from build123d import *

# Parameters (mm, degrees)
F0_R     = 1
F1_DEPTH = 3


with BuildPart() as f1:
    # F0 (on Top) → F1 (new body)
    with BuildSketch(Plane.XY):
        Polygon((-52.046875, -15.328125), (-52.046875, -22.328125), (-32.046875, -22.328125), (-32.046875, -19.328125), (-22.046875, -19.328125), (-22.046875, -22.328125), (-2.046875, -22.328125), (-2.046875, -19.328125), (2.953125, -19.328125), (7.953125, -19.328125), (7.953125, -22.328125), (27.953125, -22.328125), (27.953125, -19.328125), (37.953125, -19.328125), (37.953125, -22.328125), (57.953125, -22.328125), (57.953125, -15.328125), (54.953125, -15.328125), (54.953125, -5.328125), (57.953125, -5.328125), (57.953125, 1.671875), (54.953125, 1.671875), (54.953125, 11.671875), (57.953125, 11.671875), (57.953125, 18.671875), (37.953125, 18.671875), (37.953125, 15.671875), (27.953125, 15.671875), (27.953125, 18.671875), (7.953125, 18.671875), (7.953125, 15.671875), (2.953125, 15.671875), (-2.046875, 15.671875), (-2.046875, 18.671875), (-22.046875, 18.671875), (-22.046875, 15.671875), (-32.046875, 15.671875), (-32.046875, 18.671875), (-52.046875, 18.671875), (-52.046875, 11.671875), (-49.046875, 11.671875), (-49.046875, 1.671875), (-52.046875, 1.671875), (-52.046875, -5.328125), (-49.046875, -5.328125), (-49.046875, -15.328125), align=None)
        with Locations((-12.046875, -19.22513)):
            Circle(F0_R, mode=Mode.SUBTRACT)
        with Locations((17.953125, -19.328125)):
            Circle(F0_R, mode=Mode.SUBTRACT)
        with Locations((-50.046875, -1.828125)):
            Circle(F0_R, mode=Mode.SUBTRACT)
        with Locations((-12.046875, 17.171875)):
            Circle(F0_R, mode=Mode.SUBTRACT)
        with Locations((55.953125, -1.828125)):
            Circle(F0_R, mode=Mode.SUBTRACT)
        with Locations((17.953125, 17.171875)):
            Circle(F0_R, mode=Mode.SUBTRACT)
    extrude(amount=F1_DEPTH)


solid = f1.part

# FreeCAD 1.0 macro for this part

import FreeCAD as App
import Part
import Sketcher
from FreeCAD import Vector


def add_polygon(sketch, points):
    """Adds a closed chain of lines whose ends are joined by coincident constraints."""
    first, n = sketch.GeometryCount, len(points)
    for a, b in zip(points, points[1:] + points[:1]):
        sketch.addGeometry(Part.LineSegment(App.Vector(*a, 0), App.Vector(*b, 0)), False)
    for i in range(n):
        sketch.addConstraint(Sketcher.Constraint("Coincident", first + i, 2, first + (i + 1) % n, 1))

doc = App.newDocument("Part")
params = doc.addObject("Spreadsheet::Sheet", "Params")
for row, (alias, value) in enumerate([
    ("sketch1_diameter", "2 mm"),
    ("sketch1_width", "20 mm"),
    ("sketch1_width2", "10 mm"),
    ("sketch1_width3", "3 mm"),
    ("sketch1_height", "7 mm"),
    ("pad1_length", "3 mm"),
], start=1):
    params.set(f"A{row}", alias)
    params.set(f"B{row}", "=" + value)
    params.setAlias(f"B{row}", alias)

body = doc.addObject("PartDesign::Body", "Body")

sketch1 = doc.addObject("Sketcher::SketchObject", "Sketch")
body.addObject(sketch1)
sketch1.AttachmentSupport = (doc.XY_Plane, [""])
sketch1.MapMode = "FlatFace"
add_polygon(sketch1, [(-52, -15.3), (-52, -22.3), (-32, -22.3), (-32, -19.3), (-22, -19.3), (-22, -22.3), (-2, -22.3), (-2, -19.3), (8, -19.3), (8, -22.3), (28, -22.3), (28, -19.3), (38, -19.3), (38, -22.3), (58, -22.3), (58, -15.3), (55, -15.3), (55, -5.3), (58, -5.3), (58, 1.7), (55, 1.7), (55, 11.7), (58, 11.7), (58, 18.7), (38, 18.7), (38, 15.7), (28, 15.7), (28, 18.7), (8, 18.7), (8, 15.7), (-2, 15.7), (-2, 18.7), (-22, 18.7), (-22, 15.7), (-32, 15.7), (-32, 18.7), (-52, 18.7), (-52, 11.7), (-49, 11.7), (-49, 1.7), (-52, 1.7), (-52, -5.3), (-49, -5.3), (-49, -15.3)])
sketch1.addGeometry(Part.Circle(Vector(-12, -19.2, 0), Vector(0, 0, 1), 1), False)
sketch1.addGeometry(Part.Circle(Vector(-50, -1.8, 0), Vector(0, 0, 1), 1), False)
sketch1.addGeometry(Part.Circle(Vector(18, -19.3, 0), Vector(0, 0, 1), 1), False)
sketch1.addGeometry(Part.Circle(Vector(56, -1.8, 0), Vector(0, 0, 1), 1), False)
sketch1.addGeometry(Part.Circle(Vector(-12, 17.2, 0), Vector(0, 0, 1), 1), False)
sketch1.addGeometry(Part.Circle(Vector(18, 17.2, 0), Vector(0, 0, 1), 1), False)
sketch1.addConstraint(Sketcher.Constraint("Vertical", 0))
sketch1.addConstraint(Sketcher.Constraint("Horizontal", 1))
sketch1.addConstraint(Sketcher.Constraint("Vertical", 2))
sketch1.addConstraint(Sketcher.Constraint("Horizontal", 3))
sketch1.addConstraint(Sketcher.Constraint("Vertical", 4))
sketch1.addConstraint(Sketcher.Constraint("Horizontal", 5))
sketch1.addConstraint(Sketcher.Constraint("Vertical", 6))
sketch1.addConstraint(Sketcher.Constraint("Horizontal", 7))
sketch1.addConstraint(Sketcher.Constraint("Vertical", 8))
sketch1.addConstraint(Sketcher.Constraint("Horizontal", 9))
sketch1.addConstraint(Sketcher.Constraint("Vertical", 10))
sketch1.addConstraint(Sketcher.Constraint("Horizontal", 11))
sketch1.addConstraint(Sketcher.Constraint("Vertical", 12))
sketch1.addConstraint(Sketcher.Constraint("Horizontal", 13))
sketch1.addConstraint(Sketcher.Constraint("Vertical", 14))
sketch1.addConstraint(Sketcher.Constraint("Horizontal", 15))
sketch1.addConstraint(Sketcher.Constraint("Vertical", 16))
sketch1.addConstraint(Sketcher.Constraint("Horizontal", 17))
sketch1.addConstraint(Sketcher.Constraint("Vertical", 18))
sketch1.addConstraint(Sketcher.Constraint("Horizontal", 19))
sketch1.addConstraint(Sketcher.Constraint("Vertical", 20))
sketch1.addConstraint(Sketcher.Constraint("Horizontal", 21))
sketch1.addConstraint(Sketcher.Constraint("Vertical", 22))
sketch1.addConstraint(Sketcher.Constraint("Horizontal", 23))
sketch1.addConstraint(Sketcher.Constraint("Vertical", 24))
sketch1.addConstraint(Sketcher.Constraint("Horizontal", 25))
sketch1.addConstraint(Sketcher.Constraint("Vertical", 26))
sketch1.addConstraint(Sketcher.Constraint("Horizontal", 27))
sketch1.addConstraint(Sketcher.Constraint("Vertical", 28))
sketch1.addConstraint(Sketcher.Constraint("Horizontal", 29))
sketch1.addConstraint(Sketcher.Constraint("Vertical", 30))
sketch1.addConstraint(Sketcher.Constraint("Horizontal", 31))
sketch1.addConstraint(Sketcher.Constraint("Vertical", 32))
sketch1.addConstraint(Sketcher.Constraint("Horizontal", 33))
sketch1.addConstraint(Sketcher.Constraint("Vertical", 34))
sketch1.addConstraint(Sketcher.Constraint("Horizontal", 35))
sketch1.addConstraint(Sketcher.Constraint("Vertical", 36))
sketch1.addConstraint(Sketcher.Constraint("Horizontal", 37))
sketch1.addConstraint(Sketcher.Constraint("Vertical", 38))
sketch1.addConstraint(Sketcher.Constraint("Horizontal", 39))
sketch1.addConstraint(Sketcher.Constraint("Vertical", 40))
sketch1.addConstraint(Sketcher.Constraint("Horizontal", 41))
sketch1.addConstraint(Sketcher.Constraint("Vertical", 42))
sketch1.addConstraint(Sketcher.Constraint("Horizontal", 43))
sketch1.addConstraint(Sketcher.Constraint("Equal", 44, 45))
sketch1.addConstraint(Sketcher.Constraint("Equal", 45, 46))
sketch1.addConstraint(Sketcher.Constraint("Equal", 46, 47))
sketch1.addConstraint(Sketcher.Constraint("Equal", 47, 48))
sketch1.addConstraint(Sketcher.Constraint("Equal", 48, 49))
sketch1.addConstraint(Sketcher.Constraint("Horizontal", 45, 3, 47, 3))
sketch1.addConstraint(Sketcher.Constraint("Horizontal", 48, 3, 49, 3))
sketch1.addConstraint(Sketcher.Constraint("Horizontal", 46, 3, 2, 2))
sketch1.addConstraint(Sketcher.Constraint("Horizontal", 1, 2, 4, 2))
sketch1.addConstraint(Sketcher.Constraint("Horizontal", 3, 2, 6, 2))
sketch1.addConstraint(Sketcher.Constraint("Horizontal", 5, 2, 8, 2))
sketch1.addConstraint(Sketcher.Constraint("Horizontal", 7, 2, 10, 2))
sketch1.addConstraint(Sketcher.Constraint("Horizontal", 9, 2, 12, 2))
sketch1.addConstraint(Sketcher.Constraint("Horizontal", 23, 2, 26, 2))
sketch1.addConstraint(Sketcher.Constraint("Horizontal", 25, 2, 28, 2))
sketch1.addConstraint(Sketcher.Constraint("Horizontal", 27, 2, 30, 2))
sketch1.addConstraint(Sketcher.Constraint("Horizontal", 29, 2, 32, 2))
sketch1.addConstraint(Sketcher.Constraint("Horizontal", 31, 2, 34, 2))
sketch1.addConstraint(Sketcher.Constraint("Horizontal", 21, 2, 36, 2))
sketch1.addConstraint(Sketcher.Constraint("Horizontal", 19, 2, 38, 2))
sketch1.addConstraint(Sketcher.Constraint("Horizontal", 17, 2, 40, 2))
sketch1.addConstraint(Sketcher.Constraint("Horizontal", 15, 2, 42, 2))
sketch1.addConstraint(Sketcher.Constraint("Vertical", 44, 3, 48, 3))
sketch1.addConstraint(Sketcher.Constraint("Vertical", 46, 3, 49, 3))
sketch1.addConstraint(Sketcher.Constraint("Vertical", 14, 2, 17, 2))
sketch1.addConstraint(Sketcher.Constraint("Vertical", 16, 2, 19, 2))
sketch1.addConstraint(Sketcher.Constraint("Vertical", 18, 2, 21, 2))
sketch1.addConstraint(Sketcher.Constraint("Vertical", 12, 2, 23, 2))
sketch1.addConstraint(Sketcher.Constraint("Vertical", 10, 2, 25, 2))
sketch1.addConstraint(Sketcher.Constraint("Vertical", 8, 2, 27, 2))
sketch1.addConstraint(Sketcher.Constraint("Vertical", 6, 2, 29, 2))
sketch1.addConstraint(Sketcher.Constraint("Vertical", 4, 2, 31, 2))
sketch1.addConstraint(Sketcher.Constraint("Vertical", 2, 2, 33, 2))
sketch1.addConstraint(Sketcher.Constraint("Vertical", 0, 2, 35, 2))
sketch1.addConstraint(Sketcher.Constraint("Vertical", 36, 2, 39, 2))
sketch1.addConstraint(Sketcher.Constraint("Vertical", 38, 2, 41, 2))
sketch1.addConstraint(Sketcher.Constraint("Equal", 1, 5))
sketch1.addConstraint(Sketcher.Constraint("Equal", 3, 7))
sketch1.addConstraint(Sketcher.Constraint("Equal", 5, 9))
sketch1.addConstraint(Sketcher.Constraint("Equal", 7, 11))
sketch1.addConstraint(Sketcher.Constraint("Equal", 9, 13))
sketch1.addConstraint(Sketcher.Constraint("Equal", 21, 37))
sketch1.addConstraint(Sketcher.Constraint("Equal", 43, 2))
sketch1.addConstraint(Sketcher.Constraint("Equal", 33, 16))
sketch1.addConstraint(Sketcher.Constraint("Equal", 14, 18))
sketch1.addConstraint(Sketcher.Constraint("Equal", 16, 20))
sketch1.addConstraint(Sketcher.Constraint("Equal", 18, 22))
sketch1.addConstraint(Sketcher.Constraint("Equal", 12, 24))
sketch1.addConstraint(Sketcher.Constraint("Diameter", 44, 2.0))
sketch1.addConstraint(Sketcher.Constraint("DistanceX", 1, 1, 1, 2, 20.0))
sketch1.addConstraint(Sketcher.Constraint("DistanceX", 3, 1, 3, 2, 10.0))
sketch1.addConstraint(Sketcher.Constraint("DistanceX", 15, 2, 15, 1, 3.0))
sketch1.addConstraint(Sketcher.Constraint("DistanceY", 0, 2, 0, 1, 7.0))
sketch1.addConstraint(Sketcher.Constraint("DistanceX", 45, 3, 44, 3, 38.0))
sketch1.addConstraint(Sketcher.Constraint("DistanceX", 44, 3, 46, 3, 30.0))
sketch1.addConstraint(Sketcher.Constraint("DistanceX", 46, 3, 47, 3, 38.0))
sketch1.addConstraint(Sketcher.Constraint("DistanceY", 45, 3, 48, 3, 19.0))
sketch1.addConstraint(Sketcher.Constraint("DistanceX", 0, 2, 45, 3, 2.0))
sketch1.addConstraint(Sketcher.Constraint("DistanceY", 46, 3, 45, 3, 17.5))
sketch1.addConstraint(Sketcher.Constraint("DistanceY", 44, 3, -1, 1, 19.22513))
sketch1.addConstraint(Sketcher.Constraint("DistanceX", 44, 3, -1, 1, 12.046875))
sketch1.addConstraint(Sketcher.Constraint("DistanceY", 45, 3, -1, 1, 1.828125))
sketch1.setExpression("Constraints[136]", "Params.sketch1_diameter")
sketch1.setExpression("Constraints[137]", "Params.sketch1_width")
sketch1.setExpression("Constraints[138]", "Params.sketch1_width2")
sketch1.setExpression("Constraints[139]", "Params.sketch1_width3")
sketch1.setExpression("Constraints[140]", "Params.sketch1_height")
pad1 = doc.addObject("PartDesign::Pad", "Pad")
body.addObject(pad1)
pad1.Profile = sketch1
pad1.setExpression("Length", "Params.pad1_length")

doc.recompute()
